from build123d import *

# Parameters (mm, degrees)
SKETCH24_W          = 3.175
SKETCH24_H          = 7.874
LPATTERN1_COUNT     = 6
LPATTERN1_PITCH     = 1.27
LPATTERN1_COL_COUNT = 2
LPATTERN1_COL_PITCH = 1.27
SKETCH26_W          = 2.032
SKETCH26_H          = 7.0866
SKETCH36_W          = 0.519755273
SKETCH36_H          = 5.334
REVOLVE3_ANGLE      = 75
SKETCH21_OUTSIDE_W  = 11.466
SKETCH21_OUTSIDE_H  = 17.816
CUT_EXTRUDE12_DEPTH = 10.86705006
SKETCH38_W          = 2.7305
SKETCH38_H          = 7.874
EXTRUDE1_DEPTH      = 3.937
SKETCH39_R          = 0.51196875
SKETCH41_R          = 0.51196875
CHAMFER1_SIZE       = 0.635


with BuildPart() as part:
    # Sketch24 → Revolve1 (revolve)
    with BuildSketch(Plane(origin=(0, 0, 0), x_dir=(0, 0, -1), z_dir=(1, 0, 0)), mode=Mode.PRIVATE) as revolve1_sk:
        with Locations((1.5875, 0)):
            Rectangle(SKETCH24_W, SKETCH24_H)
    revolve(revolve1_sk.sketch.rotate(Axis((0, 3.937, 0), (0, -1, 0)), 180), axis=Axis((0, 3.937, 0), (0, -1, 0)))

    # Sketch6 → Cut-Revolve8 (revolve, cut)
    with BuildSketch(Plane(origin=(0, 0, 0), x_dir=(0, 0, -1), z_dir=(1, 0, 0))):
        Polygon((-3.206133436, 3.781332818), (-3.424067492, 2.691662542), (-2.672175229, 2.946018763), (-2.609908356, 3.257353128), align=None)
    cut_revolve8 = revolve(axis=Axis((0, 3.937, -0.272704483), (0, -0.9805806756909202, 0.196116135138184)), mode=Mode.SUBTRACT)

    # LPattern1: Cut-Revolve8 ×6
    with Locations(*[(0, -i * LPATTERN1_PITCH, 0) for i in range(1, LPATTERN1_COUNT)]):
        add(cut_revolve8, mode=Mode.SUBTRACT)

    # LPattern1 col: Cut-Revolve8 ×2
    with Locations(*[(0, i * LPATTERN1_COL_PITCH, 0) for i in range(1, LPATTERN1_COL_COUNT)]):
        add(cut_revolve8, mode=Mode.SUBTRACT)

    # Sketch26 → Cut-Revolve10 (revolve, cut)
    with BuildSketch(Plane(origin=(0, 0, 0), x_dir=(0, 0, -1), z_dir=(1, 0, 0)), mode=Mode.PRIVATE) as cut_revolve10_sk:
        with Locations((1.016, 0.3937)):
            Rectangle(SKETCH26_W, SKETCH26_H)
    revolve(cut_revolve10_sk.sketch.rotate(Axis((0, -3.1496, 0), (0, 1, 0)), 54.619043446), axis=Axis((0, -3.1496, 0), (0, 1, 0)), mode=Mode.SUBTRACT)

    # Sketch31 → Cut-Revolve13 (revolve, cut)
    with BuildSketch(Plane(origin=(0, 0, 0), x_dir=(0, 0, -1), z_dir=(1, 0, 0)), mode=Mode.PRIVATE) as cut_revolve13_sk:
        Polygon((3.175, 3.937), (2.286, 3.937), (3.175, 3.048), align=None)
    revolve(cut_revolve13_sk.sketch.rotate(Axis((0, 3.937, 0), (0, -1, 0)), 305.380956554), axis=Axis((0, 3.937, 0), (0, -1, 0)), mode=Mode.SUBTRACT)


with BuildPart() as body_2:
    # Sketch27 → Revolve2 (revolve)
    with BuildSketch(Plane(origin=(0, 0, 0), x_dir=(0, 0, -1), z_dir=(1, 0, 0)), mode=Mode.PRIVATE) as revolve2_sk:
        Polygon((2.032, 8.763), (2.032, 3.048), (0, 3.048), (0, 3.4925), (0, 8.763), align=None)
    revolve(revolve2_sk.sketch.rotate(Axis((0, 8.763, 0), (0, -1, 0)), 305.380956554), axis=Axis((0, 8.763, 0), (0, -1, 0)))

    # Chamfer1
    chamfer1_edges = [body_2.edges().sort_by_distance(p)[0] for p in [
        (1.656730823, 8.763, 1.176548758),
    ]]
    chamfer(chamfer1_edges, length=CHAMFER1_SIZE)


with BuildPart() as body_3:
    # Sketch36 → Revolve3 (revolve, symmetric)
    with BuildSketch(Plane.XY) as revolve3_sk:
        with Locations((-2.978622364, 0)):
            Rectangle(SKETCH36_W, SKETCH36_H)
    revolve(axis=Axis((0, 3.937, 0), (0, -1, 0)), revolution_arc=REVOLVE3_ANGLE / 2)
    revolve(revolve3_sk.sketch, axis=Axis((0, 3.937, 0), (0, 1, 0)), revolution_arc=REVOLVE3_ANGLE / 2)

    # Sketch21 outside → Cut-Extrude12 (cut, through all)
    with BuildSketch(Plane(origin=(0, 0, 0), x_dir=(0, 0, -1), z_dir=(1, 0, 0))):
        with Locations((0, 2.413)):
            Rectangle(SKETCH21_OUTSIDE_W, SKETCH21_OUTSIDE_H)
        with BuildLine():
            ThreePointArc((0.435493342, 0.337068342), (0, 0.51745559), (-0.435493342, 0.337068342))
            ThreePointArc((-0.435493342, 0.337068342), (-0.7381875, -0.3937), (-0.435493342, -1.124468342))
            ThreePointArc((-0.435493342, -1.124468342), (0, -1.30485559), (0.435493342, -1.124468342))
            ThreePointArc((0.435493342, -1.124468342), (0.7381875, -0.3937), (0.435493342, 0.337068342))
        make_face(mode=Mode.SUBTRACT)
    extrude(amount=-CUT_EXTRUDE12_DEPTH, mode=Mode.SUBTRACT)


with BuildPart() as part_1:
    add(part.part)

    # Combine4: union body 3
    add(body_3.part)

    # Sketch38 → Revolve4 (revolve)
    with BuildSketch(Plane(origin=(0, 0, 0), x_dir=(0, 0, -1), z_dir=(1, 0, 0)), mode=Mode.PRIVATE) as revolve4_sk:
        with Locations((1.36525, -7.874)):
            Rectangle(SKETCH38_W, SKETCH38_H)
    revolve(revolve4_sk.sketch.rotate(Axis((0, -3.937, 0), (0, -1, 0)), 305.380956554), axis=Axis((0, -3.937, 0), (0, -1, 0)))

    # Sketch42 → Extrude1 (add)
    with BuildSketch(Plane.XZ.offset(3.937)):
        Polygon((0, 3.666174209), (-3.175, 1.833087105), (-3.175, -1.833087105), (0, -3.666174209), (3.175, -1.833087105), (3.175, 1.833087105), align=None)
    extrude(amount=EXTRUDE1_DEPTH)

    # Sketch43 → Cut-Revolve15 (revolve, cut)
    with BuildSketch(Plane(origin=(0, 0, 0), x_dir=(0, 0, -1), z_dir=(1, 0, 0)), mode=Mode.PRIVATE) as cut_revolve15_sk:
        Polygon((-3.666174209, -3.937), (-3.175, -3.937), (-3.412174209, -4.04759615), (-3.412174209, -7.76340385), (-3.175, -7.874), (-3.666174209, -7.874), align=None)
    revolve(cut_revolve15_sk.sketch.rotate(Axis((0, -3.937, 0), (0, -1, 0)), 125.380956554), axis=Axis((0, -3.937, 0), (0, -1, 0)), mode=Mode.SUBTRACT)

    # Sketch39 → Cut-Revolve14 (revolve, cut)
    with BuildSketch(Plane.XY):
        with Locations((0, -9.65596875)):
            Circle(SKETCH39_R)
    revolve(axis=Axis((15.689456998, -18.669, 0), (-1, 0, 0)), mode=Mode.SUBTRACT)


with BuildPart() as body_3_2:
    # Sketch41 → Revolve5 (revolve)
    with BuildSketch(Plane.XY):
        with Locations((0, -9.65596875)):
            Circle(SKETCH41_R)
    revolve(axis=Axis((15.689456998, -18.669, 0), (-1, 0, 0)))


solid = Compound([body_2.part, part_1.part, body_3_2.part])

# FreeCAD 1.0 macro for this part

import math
import FreeCAD as App
import Part
import Sketcher

V = App.Vector
Q = App.Units.Quantity


def edges_at(feature, points):
    """Names of the edges that pass closest to the given points."""
    edges = feature.Shape.Edges
    near = lambda p: min(range(len(edges)), key=lambda i: edges[i].distToShape(Part.Vertex(*p))[0])
    return sorted({f"Edge{near(p) + 1}" for p in points})

doc = App.newDocument("Part")
params = doc.addObject("Spreadsheet::Sheet", "Params")
for row, (alias, value) in enumerate([
    ("sketch1_width", "0.31 in"),
    ("sketch1_height", "0.125 in"),
    ("revolution_angle", "360 deg"),
    ("sketch2_length", "0.03125 in"),
    ("groove_angle", "360 deg"),
    ("linearpattern_pitch", "0.05 in"),
    ("linearpattern2_pitch", "0.05 in"),
    ("sketch3_height", "0.08 in"),
    ("sketch3_width", "0.279 in"),
    ("groove2_angle", "360 deg"),
    ("sketch4_width", "0.035 in"),
    ("groove3_angle", "360 deg"),
    ("sketch5_height", "0.08 in"),
    ("sketch5_width", "0.225 in"),
    ("revolution2_angle", "360 deg"),
    ("chamfer_size", "0.025 in"),
    ("sketch6_height", "0.21 in"),
    ("revolution3_angle", "37.5 deg"),
    ("sketch7_height", "0.21 in"),
    ("revolution4_angle", "37.5 deg"),
    ("sketch9_width", "0.31 in"),
    ("revolution5_angle", "360 deg"),
    ("pad1_length", "0.155 in"),
    ("sketch11_width", "0.155 in"),
    ("groove4_angle", "360 deg"),
    ("groove5_angle", "360 deg"),
    ("revolution6_angle", "360 deg"),
], start=1):
    params.set(f"A{row}", alias)
    params.set(f"B{row}", "=" + value)
    params.setAlias(f"B{row}", alias)

body = doc.addObject("PartDesign::Body", "Body")

# Sketch on YZ plane
sketch1 = doc.addObject("Sketcher::SketchObject", "Sketch")
body.addObject(sketch1)
sketch1.AttachmentSupport = (doc.YZ_Plane, [""])
sketch1.MapMode = "FlatFace"
sketch1.addGeometry(Part.LineSegment(V(3.9, 0, 0), V(-3.9, 0, 0)), False)
sketch1.addGeometry(Part.LineSegment(V(-3.9, 0, 0), V(-3.9, -3.2, 0)), False)
sketch1.addGeometry(Part.LineSegment(V(-3.9, -3.2, 0), V(3.9, -3.2, 0)), False)
sketch1.addGeometry(Part.LineSegment(V(3.9, -3.2, 0), V(3.9, 0, 0)), False)
sketch1.addConstraint(Sketcher.Constraint("Coincident", 0, 2, 1, 1))
sketch1.addConstraint(Sketcher.Constraint("Coincident", 1, 2, 2, 1))
sketch1.addConstraint(Sketcher.Constraint("Coincident", 2, 2, 3, 1))
sketch1.addConstraint(Sketcher.Constraint("Coincident", 3, 2, 0, 1))
sketch1.addConstraint(Sketcher.Constraint("Horizontal", 0))
sketch1.addConstraint(Sketcher.Constraint("Vertical", 1))
sketch1.addConstraint(Sketcher.Constraint("Horizontal", 2))
sketch1.addConstraint(Sketcher.Constraint("Vertical", 3))
sketch1.addConstraint(Sketcher.Constraint("Symmetric", 0, 2, 3, 2, -1, 1))
sketch1.addConstraint(Sketcher.Constraint("DistanceX", 0, 2, 0, 1, Q("0.31 in")))
sketch1.addConstraint(Sketcher.Constraint("DistanceY", 1, 2, 1, 1, Q("0.125 in")))
sketch1.setExpression("Constraints[9]", "Params.sketch1_width")
sketch1.setExpression("Constraints[10]", "Params.sketch1_height")
revolution = doc.addObject("PartDesign::Revolution", "Revolution")
body.addObject(revolution)
revolution.Profile = sketch1
revolution.ReferenceAxis = (sketch1, ["H_Axis"])
revolution.setExpression("Angle", "Params.revolution_angle")

# Sketch on YZ plane
sketch2 = doc.addObject("Sketcher::SketchObject", "Sketch001")
body.addObject(sketch2)
sketch2.AttachmentSupport = (doc.YZ_Plane, [""])
sketch2.MapMode = "FlatFace"
sketch2.addGeometry(Part.LineSegment(V(3.78, 3.21, 0), V(2.69, 3.42, 0)), False)
sketch2.addGeometry(Part.LineSegment(V(2.69, 3.42, 0), V(2.95, 2.67, 0)), False)
sketch2.addGeometry(Part.LineSegment(V(2.95, 2.67, 0), V(3.26, 2.61, 0)), False)
sketch2.addGeometry(Part.LineSegment(V(3.26, 2.61, 0), V(3.78, 3.21, 0)), False)
sketch2.addGeometry(Part.LineSegment(V(3.12, -0.11, 0), V(2.03, 0.11, 0)), True)  # axis
sketch2.addConstraint(Sketcher.Constraint("Coincident", 0, 2, 1, 1))
sketch2.addConstraint(Sketcher.Constraint("Coincident", 1, 2, 2, 1))
sketch2.addConstraint(Sketcher.Constraint("Coincident", 2, 2, 3, 1))
sketch2.addConstraint(Sketcher.Constraint("Coincident", 3, 2, 0, 1))
sketch2.addConstraint(Sketcher.Constraint("Parallel", 0, 2))
sketch2.addConstraint(Sketcher.Constraint("Parallel", 2, 4))
sketch2.addConstraint(Sketcher.Constraint("Equal", 1, 3))
sketch2.addConstraint(Sketcher.Constraint("Equal", 0, 4))
sketch2.addConstraint(Sketcher.Constraint("Distance", 1, Q("0.03125 in")))
sketch2.addConstraint(Sketcher.Constraint("Distance", 2, Q("0.0125 in")))
sketch2.addConstraint(Sketcher.Constraint("DistanceY", 4, 1, 3, 2, Q("3.3151 mm")))
sketch2.addConstraint(Sketcher.Constraint("Distance", 0, Q("1.11125 mm")))
sketch2.addConstraint(Sketcher.Constraint("DistanceX", -1, 1, 1, 2, Q("2.946019 mm")))
sketch2.addConstraint(Sketcher.Constraint("DistanceY", -1, 1, 2, 2, Q("2.609908 mm")))
sketch2.addConstraint(Sketcher.Constraint("DistanceX", 0, 2, 2, 2, Q("0.565691 mm")))
sketch2.addConstraint(Sketcher.Constraint("DistanceX", 4, 1, 2, 2, Q("0.13904 mm")))
sketch2.setExpression("Constraints[8]", "Params.sketch2_length")
groove = doc.addObject("PartDesign::Groove", "Groove")
body.addObject(groove)
groove.Profile = sketch2
groove.ReferenceAxis = (sketch2, ["Axis0"])
groove.setExpression("Angle", "Params.groove_angle")
doc.recompute()

linearpattern = doc.addObject("PartDesign::LinearPattern", "LinearPattern")
body.addObject(linearpattern)
linearpattern.Originals = [groove]
linearpattern.Direction = (doc.Y_Axis, [""])
linearpattern.Mode = "offset"
linearpattern.setExpression("Offset", "Params.linearpattern_pitch")
linearpattern.Occurrences = 6
linearpattern.Reversed = True
body.Tip = linearpattern
doc.recompute()

linearpattern2 = doc.addObject("PartDesign::LinearPattern", "LinearPattern001")
body.addObject(linearpattern2)
linearpattern2.Originals = [groove]
linearpattern2.Direction = (doc.Y_Axis, [""])
linearpattern2.Mode = "offset"
linearpattern2.setExpression("Offset", "Params.linearpattern2_pitch")
linearpattern2.Occurrences = 2
body.Tip = linearpattern2

# Sketch on YZ plane
sketch3 = doc.addObject("Sketcher::SketchObject", "Sketch002")
body.addObject(sketch3)
sketch3.AttachmentSupport = (doc.YZ_Plane, [""])
sketch3.MapMode = "FlatFace"
sketch3.addGeometry(Part.LineSegment(V(3.9, 0, 0), V(-3.1, 0, 0)), False)
sketch3.addGeometry(Part.LineSegment(V(-3.1, 0, 0), V(-3.1, -2, 0)), False)
sketch3.addGeometry(Part.LineSegment(V(-3.1, -2, 0), V(3.9, -2, 0)), False)
sketch3.addGeometry(Part.LineSegment(V(3.9, -2, 0), V(3.9, 0, 0)), False)
sketch3.addConstraint(Sketcher.Constraint("Coincident", 0, 2, 1, 1))
sketch3.addConstraint(Sketcher.Constraint("Coincident", 1, 2, 2, 1))
sketch3.addConstraint(Sketcher.Constraint("Coincident", 2, 2, 3, 1))
sketch3.addConstraint(Sketcher.Constraint("Coincident", 3, 2, 0, 1))
sketch3.addConstraint(Sketcher.Constraint("Horizontal", 0))
sketch3.addConstraint(Sketcher.Constraint("Vertical", 1))
sketch3.addConstraint(Sketcher.Constraint("Horizontal", 2))
sketch3.addConstraint(Sketcher.Constraint("Vertical", 3))
sketch3.addConstraint(Sketcher.Constraint("PointOnObject", 0, 2, -1))
sketch3.addConstraint(Sketcher.Constraint("DistanceY", 1, 2, 1, 1, Q("0.08 in")))
sketch3.addConstraint(Sketcher.Constraint("DistanceX", 0, 2, 0, 1, Q("0.279 in")))
sketch3.addConstraint(Sketcher.Constraint("DistanceX", 0, 2, -1, 1, Q("0.124 in")))
sketch3.setExpression("Constraints[9]", "Params.sketch3_height")
sketch3.setExpression("Constraints[10]", "Params.sketch3_width")
groove2 = doc.addObject("PartDesign::Groove", "Groove001")
body.addObject(groove2)
groove2.Profile = sketch3
groove2.ReferenceAxis = (sketch3, ["H_Axis"])
groove2.setExpression("Angle", "Params.groove2_angle")

# Sketch on YZ plane
sketch4 = doc.addObject("Sketcher::SketchObject", "Sketch003")
body.addObject(sketch4)
sketch4.AttachmentSupport = (doc.YZ_Plane, [""])
sketch4.MapMode = "FlatFace"
sketch4.addGeometry(Part.LineSegment(V(3.9, -3.2, 0), V(3.9, -2.3, 0)), False)
sketch4.addGeometry(Part.LineSegment(V(3.9, -2.3, 0), V(3, -3.2, 0)), False)
sketch4.addGeometry(Part.LineSegment(V(3, -3.2, 0), V(3.9, -3.2, 0)), False)
sketch4.addConstraint(Sketcher.Constraint("Coincident", 0, 2, 1, 1))
sketch4.addConstraint(Sketcher.Constraint("Coincident", 1, 2, 2, 1))
sketch4.addConstraint(Sketcher.Constraint("Coincident", 2, 2, 0, 1))
sketch4.addConstraint(Sketcher.Constraint("Vertical", 0))
sketch4.addConstraint(Sketcher.Constraint("Horizontal", 2))
sketch4.addConstraint(Sketcher.Constraint("Equal", 2, 0))
sketch4.addConstraint(Sketcher.Constraint("DistanceX", 2, 1, 2, 2, Q("0.035 in")))
sketch4.addConstraint(Sketcher.Constraint("DistanceY", 0, 2, -1, 1, Q("0.09 in")))
sketch4.addConstraint(Sketcher.Constraint("DistanceX", -1, 1, 1, 2, Q("0.12 in")))
sketch4.setExpression("Constraints[6]", "Params.sketch4_width")
groove3 = doc.addObject("PartDesign::Groove", "Groove002")
body.addObject(groove3)
groove3.Profile = sketch4
groove3.ReferenceAxis = (sketch4, ["H_Axis"])
groove3.setExpression("Angle", "Params.groove3_angle")
body2 = doc.addObject("PartDesign::Body", "Body001")

# Sketch on YZ plane
sketch5 = doc.addObject("Sketcher::SketchObject", "Sketch004")
body2.addObject(sketch5)
sketch5.AttachmentSupport = (doc.getObject("YZ_Plane001"), [""])
sketch5.MapMode = "FlatFace"
sketch5.addGeometry(Part.LineSegment(V(3, -2, 0), V(8.8, -2, 0)), False)
sketch5.addGeometry(Part.LineSegment(V(8.8, -2, 0), V(8.8, 0, 0)), False)
sketch5.addGeometry(Part.LineSegment(V(8.8, 0, 0), V(3, 0, 0)), False)
sketch5.addGeometry(Part.LineSegment(V(3, 0, 0), V(3, -2, 0)), False)
sketch5.addConstraint(Sketcher.Constraint("Coincident", 0, 2, 1, 1))
sketch5.addConstraint(Sketcher.Constraint("Coincident", 1, 2, 2, 1))
sketch5.addConstraint(Sketcher.Constraint("Coincident", 2, 2, 3, 1))
sketch5.addConstraint(Sketcher.Constraint("Coincident", 3, 2, 0, 1))
sketch5.addConstraint(Sketcher.Constraint("Horizontal", 0))
sketch5.addConstraint(Sketcher.Constraint("Vertical", 1))
sketch5.addConstraint(Sketcher.Constraint("Horizontal", 2))
sketch5.addConstraint(Sketcher.Constraint("Vertical", 3))
sketch5.addConstraint(Sketcher.Constraint("PointOnObject", 1, 2, -1))
sketch5.addConstraint(Sketcher.Constraint("DistanceY", 1, 1, 1, 2, Q("0.08 in")))
sketch5.addConstraint(Sketcher.Constraint("DistanceX", 0, 1, 0, 2, Q("0.225 in")))
sketch5.addConstraint(Sketcher.Constraint("DistanceX", -1, 1, 2, 2, Q("0.12 in")))
sketch5.setExpression("Constraints[9]", "Params.sketch5_height")
sketch5.setExpression("Constraints[10]", "Params.sketch5_width")
revolution2 = doc.addObject("PartDesign::Revolution", "Revolution001")
body2.addObject(revolution2)
revolution2.Profile = sketch5
revolution2.ReferenceAxis = (sketch5, ["H_Axis"])
revolution2.setExpression("Angle", "Params.revolution2_angle")
doc.recompute()

chamfer = doc.addObject("PartDesign::Chamfer", "Chamfer")
body2.addObject(chamfer)
chamfer.Base = (revolution2, edges_at(revolution2, [(1.657, 8.763, 1.177)]))
chamfer.setExpression("Size", "Params.chamfer_size")
body3 = doc.addObject("PartDesign::Body", "Body002")

# Sketch on XY plane
sketch6 = doc.addObject("Sketcher::SketchObject", "Sketch005")
body3.addObject(sketch6)
sketch6.AttachmentSupport = (doc.getObject("XY_Plane002"), [""])
sketch6.MapMode = "FlatFace"
sketch6.addGeometry(Part.LineSegment(V(-3.2, 2.7, 0), V(-3.2, -2.7, 0)), False)
sketch6.addGeometry(Part.LineSegment(V(-3.2, -2.7, 0), V(-2.7, -2.7, 0)), False)
sketch6.addGeometry(Part.LineSegment(V(-2.7, -2.7, 0), V(-2.7, 2.7, 0)), False)
sketch6.addGeometry(Part.LineSegment(V(-2.7, 2.7, 0), V(-3.2, 2.7, 0)), False)
sketch6.addConstraint(Sketcher.Constraint("Coincident", 0, 2, 1, 1))
sketch6.addConstraint(Sketcher.Constraint("Coincident", 1, 2, 2, 1))
sketch6.addConstraint(Sketcher.Constraint("Coincident", 2, 2, 3, 1))
sketch6.addConstraint(Sketcher.Constraint("Coincident", 3, 2, 0, 1))
sketch6.addConstraint(Sketcher.Constraint("Vertical", 0))
sketch6.addConstraint(Sketcher.Constraint("Horizontal", 1))
sketch6.addConstraint(Sketcher.Constraint("Vertical", 2))
sketch6.addConstraint(Sketcher.Constraint("Horizontal", 3))
sketch6.addConstraint(Sketcher.Constraint("DistanceY", 0, 2, 0, 1, Q("0.21 in")))
sketch6.addConstraint(Sketcher.Constraint("DistanceY", 0, 2, -1, 1, Q("0.105 in")))
sketch6.addConstraint(Sketcher.Constraint("DistanceX", 0, 2, -1, 1, Q("0.1275 in")))
sketch6.addConstraint(Sketcher.Constraint("DistanceX", 1, 1, 1, 2, Q("0.519755 mm")))
sketch6.setExpression("Constraints[8]", "Params.sketch6_height")
revolution3 = doc.addObject("PartDesign::Revolution", "Revolution002")
body3.addObject(revolution3)
revolution3.Profile = sketch6
revolution3.ReferenceAxis = (sketch6, ["V_Axis"])
revolution3.setExpression("Angle", "Params.revolution3_angle")
revolution3.Reversed = True

# Sketch on XY plane
sketch7 = doc.addObject("Sketcher::SketchObject", "Sketch006")
body3.addObject(sketch7)
sketch7.AttachmentSupport = (doc.getObject("XY_Plane002"), [""])
sketch7.MapMode = "FlatFace"
sketch7.addGeometry(Part.LineSegment(V(-3.2, 2.7, 0), V(-3.2, -2.7, 0)), False)
sketch7.addGeometry(Part.LineSegment(V(-3.2, -2.7, 0), V(-2.7, -2.7, 0)), False)
sketch7.addGeometry(Part.LineSegment(V(-2.7, -2.7, 0), V(-2.7, 2.7, 0)), False)
sketch7.addGeometry(Part.LineSegment(V(-2.7, 2.7, 0), V(-3.2, 2.7, 0)), False)
sketch7.addConstraint(Sketcher.Constraint("Coincident", 0, 2, 1, 1))
sketch7.addConstraint(Sketcher.Constraint("Coincident", 1, 2, 2, 1))
sketch7.addConstraint(Sketcher.Constraint("Coincident", 2, 2, 3, 1))
sketch7.addConstraint(Sketcher.Constraint("Coincident", 3, 2, 0, 1))
sketch7.addConstraint(Sketcher.Constraint("Vertical", 0))
sketch7.addConstraint(Sketcher.Constraint("Horizontal", 1))
sketch7.addConstraint(Sketcher.Constraint("Vertical", 2))
sketch7.addConstraint(Sketcher.Constraint("Horizontal", 3))
sketch7.addConstraint(Sketcher.Constraint("DistanceY", 0, 2, 0, 1, Q("0.21 in")))
sketch7.addConstraint(Sketcher.Constraint("DistanceY", 0, 2, -1, 1, Q("0.105 in")))
sketch7.addConstraint(Sketcher.Constraint("DistanceX", 0, 2, -1, 1, Q("0.1275 in")))
sketch7.addConstraint(Sketcher.Constraint("DistanceX", 1, 1, 1, 2, Q("0.519755 mm")))
sketch7.setExpression("Constraints[8]", "Params.sketch7_height")
revolution4 = doc.addObject("PartDesign::Revolution", "Revolution003")
body3.addObject(revolution4)
revolution4.Profile = sketch7
revolution4.ReferenceAxis = (sketch7, ["V_Axis"])
revolution4.setExpression("Angle", "Params.revolution4_angle")

# Sketch on YZ plane
sketch8 = doc.addObject("Sketcher::SketchObject", "Sketch007")
body3.addObject(sketch8)
sketch8.AttachmentSupport = (doc.getObject("YZ_Plane002"), [""])
sketch8.MapMode = "FlatFace"
sketch8.addGeometry(Part.LineSegment(V(11.3, 5.7, 0), V(-6.5, 5.7, 0)), False)
sketch8.addGeometry(Part.LineSegment(V(-6.5, 5.7, 0), V(-6.5, -5.7, 0)), False)
sketch8.addGeometry(Part.LineSegment(V(-6.5, -5.7, 0), V(11.3, -5.7, 0)), False)
sketch8.addGeometry(Part.LineSegment(V(11.3, -5.7, 0), V(11.3, 5.7, 0)), False)
sketch8.addGeometry(Part.ArcOfCircle(Part.Circle(V(-0.1, 0, 0), V(0, 0, 1), 0.6), math.radians(-45), math.radians(45)), False)
sketch8.addGeometry(Part.ArcOfCircle(Part.Circle(V(-0.4, 0.3, 0), V(0, 0, 1), 1), math.radians(-135), math.radians(-45)), False)
sketch8.addGeometry(Part.ArcOfCircle(Part.Circle(V(-0.7, 0, 0), V(0, 0, 1), 0.6), math.radians(135), math.radians(225)), False)
sketch8.addGeometry(Part.ArcOfCircle(Part.Circle(V(-0.4, -0.3, 0), V(0, 0, 1), 1), math.radians(45), math.radians(135)), False)
sketch8.addConstraint(Sketcher.Constraint("Coincident", 0, 2, 1, 1))
sketch8.addConstraint(Sketcher.Constraint("Coincident", 1, 2, 2, 1))
sketch8.addConstraint(Sketcher.Constraint("Coincident", 2, 2, 3, 1))
sketch8.addConstraint(Sketcher.Constraint("Coincident", 3, 2, 0, 1))
sketch8.addConstraint(Sketcher.Constraint("Tangent", 4, 1, 5, 2))
sketch8.addConstraint(Sketcher.Constraint("Tangent", 5, 1, 6, 2))
sketch8.addConstraint(Sketcher.Constraint("Tangent", 6, 1, 7, 2))
sketch8.addConstraint(Sketcher.Constraint("Tangent", 7, 1, 4, 2))
sketch8.addConstraint(Sketcher.Constraint("Horizontal", 0))
sketch8.addConstraint(Sketcher.Constraint("Vertical", 1))
sketch8.addConstraint(Sketcher.Constraint("Horizontal", 2))
sketch8.addConstraint(Sketcher.Constraint("Vertical", 3))
sketch8.addConstraint(Sketcher.Constraint("Equal", 4, 6))
sketch8.addConstraint(Sketcher.Constraint("Equal", 5, 7))
sketch8.addConstraint(Sketcher.Constraint("Symmetric", 5, 3, 7, 3, -1))
sketch8.addConstraint(Sketcher.Constraint("Radius", 4, Q("0.615881 mm")))
sketch8.addConstraint(Sketcher.Constraint("DistanceX", 0, 2, 0, 1, Q("17.816 mm")))
sketch8.addConstraint(Sketcher.Constraint("DistanceY", 1, 2, 1, 1, Q("11.466 mm")))
sketch8.addConstraint(Sketcher.Constraint("DistanceX", 5, 3, -1, 1, Q("0.0155 in")))
sketch8.addConstraint(Sketcher.Constraint("Radius", 5, Q("1.033463 mm")))
sketch8.addConstraint(Sketcher.Constraint("DistanceX", 0, 2, -1, 1, Q("6.495 mm")))
sketch8.addConstraint(Sketcher.Constraint("DistanceY", -1, 1, 0, 2, Q("5.733 mm")))
sketch8.addConstraint(Sketcher.Constraint("DistanceX", -1, 1, 4, 1, Q("0.337068 mm")))
pocket1 = doc.addObject("PartDesign::Pocket", "Pocket")
body3.addObject(pocket1)
pocket1.Profile = sketch8
pocket1.Type = "ThroughAll"
doc.recompute()

boolean = doc.addObject("PartDesign::Boolean", "Boolean")
body.addObject(boolean)
boolean.Type = "Fuse"
boolean.addObjects([body3])

# Sketch on YZ plane
sketch9 = doc.addObject("Sketcher::SketchObject", "Sketch008")
body.addObject(sketch9)
sketch9.AttachmentSupport = (doc.YZ_Plane, [""])
sketch9.MapMode = "FlatFace"
sketch9.addGeometry(Part.LineSegment(V(-3.9, 0, 0), V(-11.8, 0, 0)), False)
sketch9.addGeometry(Part.LineSegment(V(-11.8, 0, 0), V(-11.8, -2.7, 0)), False)
sketch9.addGeometry(Part.LineSegment(V(-11.8, -2.7, 0), V(-3.9, -2.7, 0)), False)
sketch9.addGeometry(Part.LineSegment(V(-3.9, -2.7, 0), V(-3.9, 0, 0)), False)
sketch9.addConstraint(Sketcher.Constraint("Coincident", 0, 2, 1, 1))
sketch9.addConstraint(Sketcher.Constraint("Coincident", 1, 2, 2, 1))
sketch9.addConstraint(Sketcher.Constraint("Coincident", 2, 2, 3, 1))
sketch9.addConstraint(Sketcher.Constraint("Coincident", 3, 2, 0, 1))
sketch9.addConstraint(Sketcher.Constraint("Horizontal", 0))
sketch9.addConstraint(Sketcher.Constraint("Vertical", 1))
sketch9.addConstraint(Sketcher.Constraint("Horizontal", 2))
sketch9.addConstraint(Sketcher.Constraint("Vertical", 3))
sketch9.addConstraint(Sketcher.Constraint("PointOnObject", 0, 2, -1))
sketch9.addConstraint(Sketcher.Constraint("DistanceX", 0, 2, 0, 1, Q("0.31 in")))
sketch9.addConstraint(Sketcher.Constraint("DistanceY", 1, 2, 1, 1, Q("0.1075 in")))
sketch9.addConstraint(Sketcher.Constraint("DistanceX", 0, 2, -1, 1, Q("0.465 in")))
sketch9.setExpression("Constraints[9]", "Params.sketch9_width")
revolution5 = doc.addObject("PartDesign::Revolution", "Revolution004")
body.addObject(revolution5)
revolution5.Profile = sketch9
revolution5.ReferenceAxis = (sketch9, ["H_Axis"])
revolution5.setExpression("Angle", "Params.revolution5_angle")

# Sketch on XZ plane
sketch10 = doc.addObject("Sketcher::SketchObject", "Sketch009")
body.addObject(sketch10)
sketch10.AttachmentSupport = (doc.XZ_Plane, [""])
sketch10.MapMode = "FlatFace"
sketch10.AttachmentOffset = App.Placement(V(0, 0, 0.155 * 25.4), App.Rotation())
sketch10.addGeometry(Part.LineSegment(V(0, 3.7, 0), V(-3.2, 1.8, 0)), False)
sketch10.addGeometry(Part.LineSegment(V(-3.2, 1.8, 0), V(-3.2, -1.8, 0)), False)
sketch10.addGeometry(Part.LineSegment(V(-3.2, -1.8, 0), V(0, -3.7, 0)), False)
sketch10.addGeometry(Part.LineSegment(V(0, -3.7, 0), V(3.2, -1.8, 0)), False)
sketch10.addGeometry(Part.LineSegment(V(3.2, -1.8, 0), V(3.2, 1.8, 0)), False)
sketch10.addGeometry(Part.LineSegment(V(3.2, 1.8, 0), V(0, 3.7, 0)), False)
sketch10.addConstraint(Sketcher.Constraint("Coincident", 0, 2, 1, 1))
sketch10.addConstraint(Sketcher.Constraint("Coincident", 1, 2, 2, 1))
sketch10.addConstraint(Sketcher.Constraint("Coincident", 2, 2, 3, 1))
sketch10.addConstraint(Sketcher.Constraint("Coincident", 3, 2, 4, 1))
sketch10.addConstraint(Sketcher.Constraint("Coincident", 4, 2, 5, 1))
sketch10.addConstraint(Sketcher.Constraint("Coincident", 5, 2, 0, 1))
sketch10.addConstraint(Sketcher.Constraint("Vertical", 1))
sketch10.addConstraint(Sketcher.Constraint("Vertical", 4))
sketch10.addConstraint(Sketcher.Constraint("Symmetric", 0, 2, 3, 2, -1, 1))
sketch10.addConstraint(Sketcher.Constraint("Symmetric", 2, 2, 5, 2, -1, 1))
sketch10.addConstraint(Sketcher.Constraint("PointOnObject", 2, 2, -2))
sketch10.addConstraint(Sketcher.Constraint("Parallel", 2, 5))
sketch10.addConstraint(Sketcher.Constraint("Horizontal", 1, 2, 3, 2))
sketch10.addConstraint(Sketcher.Constraint("Angle", 0, Q("-150 deg")))
sketch10.addConstraint(Sketcher.Constraint("DistanceX", 1, 2, 3, 2, Q("0.25 in")))
sketch10.addConstraint(Sketcher.Constraint("DistanceY", 1, 2, 1, 1, Q("3.666174 mm")))
pad1 = doc.addObject("PartDesign::Pad", "Pad")
body.addObject(pad1)
pad1.Profile = sketch10
pad1.setExpression("Length", "Params.pad1_length")

# Sketch on YZ plane
sketch11 = doc.addObject("Sketcher::SketchObject", "Sketch010")
body.addObject(sketch11)
sketch11.AttachmentSupport = (doc.YZ_Plane, [""])
sketch11.MapMode = "FlatFace"
sketch11.addGeometry(Part.LineSegment(V(-3.94, 3.17, 0), V(-3.94, 3.67, 0)), False)
sketch11.addGeometry(Part.LineSegment(V(-3.94, 3.67, 0), V(-7.87, 3.67, 0)), False)
sketch11.addGeometry(Part.LineSegment(V(-7.87, 3.67, 0), V(-7.87, 3.17, 0)), False)
sketch11.addGeometry(Part.LineSegment(V(-7.87, 3.17, 0), V(-7.76, 3.41, 0)), False)
sketch11.addGeometry(Part.LineSegment(V(-7.76, 3.41, 0), V(-4.05, 3.41, 0)), False)
sketch11.addGeometry(Part.LineSegment(V(-4.05, 3.41, 0), V(-3.94, 3.17, 0)), False)
sketch11.addConstraint(Sketcher.Constraint("Coincident", 0, 2, 1, 1))
sketch11.addConstraint(Sketcher.Constraint("Coincident", 1, 2, 2, 1))
sketch11.addConstraint(Sketcher.Constraint("Coincident", 2, 2, 3, 1))
sketch11.addConstraint(Sketcher.Constraint("Coincident", 3, 2, 4, 1))
sketch11.addConstraint(Sketcher.Constraint("Coincident", 4, 2, 5, 1))
sketch11.addConstraint(Sketcher.Constraint("Coincident", 5, 2, 0, 1))
sketch11.addConstraint(Sketcher.Constraint("Vertical", 0))
sketch11.addConstraint(Sketcher.Constraint("Horizontal", 1))
sketch11.addConstraint(Sketcher.Constraint("Vertical", 2))
sketch11.addConstraint(Sketcher.Constraint("Horizontal", 4))
sketch11.addConstraint(Sketcher.Constraint("Horizontal", 2, 2, 5, 2))
sketch11.addConstraint(Sketcher.Constraint("Equal", 3, 5))
sketch11.addConstraint(Sketcher.Constraint("Angle", 3, Q("65 deg")))
sketch11.addConstraint(Sketcher.Constraint("DistanceX", 1, 2, 1, 1, Q("0.155 in")))
sketch11.addConstraint(Sketcher.Constraint("DistanceX", 1, 2, -1, 1, Q("0.31 in")))
sketch11.addConstraint(Sketcher.Constraint("DistanceY", 3, 2, 1, 2, Q("0.01 in")))
sketch11.addConstraint(Sketcher.Constraint("DistanceY", -1, 1, 2, 2, Q("0.125 in")))
sketch11.addConstraint(Sketcher.Constraint("DistanceX", 4, 1, 4, 2, Q("3.715808 mm")))
sketch11.setExpression("Constraints[13]", "Params.sketch11_width")
groove4 = doc.addObject("PartDesign::Groove", "Groove003")
body.addObject(groove4)
groove4.Profile = sketch11
groove4.ReferenceAxis = (sketch11, ["H_Axis"])
groove4.setExpression("Angle", "Params.groove4_angle")

# Sketch on XY plane
sketch12 = doc.addObject("Sketcher::SketchObject", "Sketch011")
body.addObject(sketch12)
sketch12.AttachmentSupport = (doc.XY_Plane, [""])
sketch12.MapMode = "FlatFace"
sketch12.addGeometry(Part.Circle(V(0, -9.7, 0), V(0, 0, 1), 0.5), False)
sketch12.addGeometry(Part.LineSegment(V(0, -18.7, 0), V(-10, -18.7, 0)), True)  # axis
sketch12.addConstraint(Sketcher.Constraint("Horizontal", 1))
sketch12.addConstraint(Sketcher.Constraint("PointOnObject", 0, 3, -2))
sketch12.addConstraint(Sketcher.Constraint("PointOnObject", 1, 1, -2))
sketch12.addConstraint(Sketcher.Constraint("DistanceY", 1, 1, -1, 1, Q("0.735 in")))
sketch12.addConstraint(Sketcher.Constraint("Diameter", 0, Q("1.023937 mm")))
sketch12.addConstraint(Sketcher.Constraint("DistanceX", 1, 2, 1, 1, Q("10 mm")))
sketch12.addConstraint(Sketcher.Constraint("DistanceY", 0, 3, -1, 1, Q("9.655969 mm")))
groove5 = doc.addObject("PartDesign::Groove", "Groove004")
body.addObject(groove5)
groove5.Profile = sketch12
groove5.ReferenceAxis = (sketch12, ["Axis0"])
groove5.setExpression("Angle", "Params.groove5_angle")
body4 = doc.addObject("PartDesign::Body", "Body003")

# Sketch on XY plane
sketch13 = doc.addObject("Sketcher::SketchObject", "Sketch012")
body4.addObject(sketch13)
sketch13.AttachmentSupport = (doc.getObject("XY_Plane003"), [""])
sketch13.MapMode = "FlatFace"
sketch13.addGeometry(Part.Circle(V(0, -9.7, 0), V(0, 0, 1), 0.5), False)
sketch13.addGeometry(Part.LineSegment(V(0, -18.7, 0), V(-10, -18.7, 0)), True)  # axis
sketch13.addConstraint(Sketcher.Constraint("Horizontal", 1))
sketch13.addConstraint(Sketcher.Constraint("PointOnObject", 0, 3, -2))
sketch13.addConstraint(Sketcher.Constraint("PointOnObject", 1, 1, -2))
sketch13.addConstraint(Sketcher.Constraint("DistanceY", 1, 1, -1, 1, Q("0.735 in")))
sketch13.addConstraint(Sketcher.Constraint("Diameter", 0, Q("1.023937 mm")))
sketch13.addConstraint(Sketcher.Constraint("DistanceX", 1, 2, 1, 1, Q("10 mm")))
sketch13.addConstraint(Sketcher.Constraint("DistanceY", 0, 3, -1, 1, Q("9.655969 mm")))
revolution6 = doc.addObject("PartDesign::Revolution", "Revolution005")
body4.addObject(revolution6)
revolution6.Profile = sketch13
revolution6.ReferenceAxis = (sketch13, ["Axis0"])
revolution6.setExpression("Angle", "Params.revolution6_angle")

doc.recompute()
